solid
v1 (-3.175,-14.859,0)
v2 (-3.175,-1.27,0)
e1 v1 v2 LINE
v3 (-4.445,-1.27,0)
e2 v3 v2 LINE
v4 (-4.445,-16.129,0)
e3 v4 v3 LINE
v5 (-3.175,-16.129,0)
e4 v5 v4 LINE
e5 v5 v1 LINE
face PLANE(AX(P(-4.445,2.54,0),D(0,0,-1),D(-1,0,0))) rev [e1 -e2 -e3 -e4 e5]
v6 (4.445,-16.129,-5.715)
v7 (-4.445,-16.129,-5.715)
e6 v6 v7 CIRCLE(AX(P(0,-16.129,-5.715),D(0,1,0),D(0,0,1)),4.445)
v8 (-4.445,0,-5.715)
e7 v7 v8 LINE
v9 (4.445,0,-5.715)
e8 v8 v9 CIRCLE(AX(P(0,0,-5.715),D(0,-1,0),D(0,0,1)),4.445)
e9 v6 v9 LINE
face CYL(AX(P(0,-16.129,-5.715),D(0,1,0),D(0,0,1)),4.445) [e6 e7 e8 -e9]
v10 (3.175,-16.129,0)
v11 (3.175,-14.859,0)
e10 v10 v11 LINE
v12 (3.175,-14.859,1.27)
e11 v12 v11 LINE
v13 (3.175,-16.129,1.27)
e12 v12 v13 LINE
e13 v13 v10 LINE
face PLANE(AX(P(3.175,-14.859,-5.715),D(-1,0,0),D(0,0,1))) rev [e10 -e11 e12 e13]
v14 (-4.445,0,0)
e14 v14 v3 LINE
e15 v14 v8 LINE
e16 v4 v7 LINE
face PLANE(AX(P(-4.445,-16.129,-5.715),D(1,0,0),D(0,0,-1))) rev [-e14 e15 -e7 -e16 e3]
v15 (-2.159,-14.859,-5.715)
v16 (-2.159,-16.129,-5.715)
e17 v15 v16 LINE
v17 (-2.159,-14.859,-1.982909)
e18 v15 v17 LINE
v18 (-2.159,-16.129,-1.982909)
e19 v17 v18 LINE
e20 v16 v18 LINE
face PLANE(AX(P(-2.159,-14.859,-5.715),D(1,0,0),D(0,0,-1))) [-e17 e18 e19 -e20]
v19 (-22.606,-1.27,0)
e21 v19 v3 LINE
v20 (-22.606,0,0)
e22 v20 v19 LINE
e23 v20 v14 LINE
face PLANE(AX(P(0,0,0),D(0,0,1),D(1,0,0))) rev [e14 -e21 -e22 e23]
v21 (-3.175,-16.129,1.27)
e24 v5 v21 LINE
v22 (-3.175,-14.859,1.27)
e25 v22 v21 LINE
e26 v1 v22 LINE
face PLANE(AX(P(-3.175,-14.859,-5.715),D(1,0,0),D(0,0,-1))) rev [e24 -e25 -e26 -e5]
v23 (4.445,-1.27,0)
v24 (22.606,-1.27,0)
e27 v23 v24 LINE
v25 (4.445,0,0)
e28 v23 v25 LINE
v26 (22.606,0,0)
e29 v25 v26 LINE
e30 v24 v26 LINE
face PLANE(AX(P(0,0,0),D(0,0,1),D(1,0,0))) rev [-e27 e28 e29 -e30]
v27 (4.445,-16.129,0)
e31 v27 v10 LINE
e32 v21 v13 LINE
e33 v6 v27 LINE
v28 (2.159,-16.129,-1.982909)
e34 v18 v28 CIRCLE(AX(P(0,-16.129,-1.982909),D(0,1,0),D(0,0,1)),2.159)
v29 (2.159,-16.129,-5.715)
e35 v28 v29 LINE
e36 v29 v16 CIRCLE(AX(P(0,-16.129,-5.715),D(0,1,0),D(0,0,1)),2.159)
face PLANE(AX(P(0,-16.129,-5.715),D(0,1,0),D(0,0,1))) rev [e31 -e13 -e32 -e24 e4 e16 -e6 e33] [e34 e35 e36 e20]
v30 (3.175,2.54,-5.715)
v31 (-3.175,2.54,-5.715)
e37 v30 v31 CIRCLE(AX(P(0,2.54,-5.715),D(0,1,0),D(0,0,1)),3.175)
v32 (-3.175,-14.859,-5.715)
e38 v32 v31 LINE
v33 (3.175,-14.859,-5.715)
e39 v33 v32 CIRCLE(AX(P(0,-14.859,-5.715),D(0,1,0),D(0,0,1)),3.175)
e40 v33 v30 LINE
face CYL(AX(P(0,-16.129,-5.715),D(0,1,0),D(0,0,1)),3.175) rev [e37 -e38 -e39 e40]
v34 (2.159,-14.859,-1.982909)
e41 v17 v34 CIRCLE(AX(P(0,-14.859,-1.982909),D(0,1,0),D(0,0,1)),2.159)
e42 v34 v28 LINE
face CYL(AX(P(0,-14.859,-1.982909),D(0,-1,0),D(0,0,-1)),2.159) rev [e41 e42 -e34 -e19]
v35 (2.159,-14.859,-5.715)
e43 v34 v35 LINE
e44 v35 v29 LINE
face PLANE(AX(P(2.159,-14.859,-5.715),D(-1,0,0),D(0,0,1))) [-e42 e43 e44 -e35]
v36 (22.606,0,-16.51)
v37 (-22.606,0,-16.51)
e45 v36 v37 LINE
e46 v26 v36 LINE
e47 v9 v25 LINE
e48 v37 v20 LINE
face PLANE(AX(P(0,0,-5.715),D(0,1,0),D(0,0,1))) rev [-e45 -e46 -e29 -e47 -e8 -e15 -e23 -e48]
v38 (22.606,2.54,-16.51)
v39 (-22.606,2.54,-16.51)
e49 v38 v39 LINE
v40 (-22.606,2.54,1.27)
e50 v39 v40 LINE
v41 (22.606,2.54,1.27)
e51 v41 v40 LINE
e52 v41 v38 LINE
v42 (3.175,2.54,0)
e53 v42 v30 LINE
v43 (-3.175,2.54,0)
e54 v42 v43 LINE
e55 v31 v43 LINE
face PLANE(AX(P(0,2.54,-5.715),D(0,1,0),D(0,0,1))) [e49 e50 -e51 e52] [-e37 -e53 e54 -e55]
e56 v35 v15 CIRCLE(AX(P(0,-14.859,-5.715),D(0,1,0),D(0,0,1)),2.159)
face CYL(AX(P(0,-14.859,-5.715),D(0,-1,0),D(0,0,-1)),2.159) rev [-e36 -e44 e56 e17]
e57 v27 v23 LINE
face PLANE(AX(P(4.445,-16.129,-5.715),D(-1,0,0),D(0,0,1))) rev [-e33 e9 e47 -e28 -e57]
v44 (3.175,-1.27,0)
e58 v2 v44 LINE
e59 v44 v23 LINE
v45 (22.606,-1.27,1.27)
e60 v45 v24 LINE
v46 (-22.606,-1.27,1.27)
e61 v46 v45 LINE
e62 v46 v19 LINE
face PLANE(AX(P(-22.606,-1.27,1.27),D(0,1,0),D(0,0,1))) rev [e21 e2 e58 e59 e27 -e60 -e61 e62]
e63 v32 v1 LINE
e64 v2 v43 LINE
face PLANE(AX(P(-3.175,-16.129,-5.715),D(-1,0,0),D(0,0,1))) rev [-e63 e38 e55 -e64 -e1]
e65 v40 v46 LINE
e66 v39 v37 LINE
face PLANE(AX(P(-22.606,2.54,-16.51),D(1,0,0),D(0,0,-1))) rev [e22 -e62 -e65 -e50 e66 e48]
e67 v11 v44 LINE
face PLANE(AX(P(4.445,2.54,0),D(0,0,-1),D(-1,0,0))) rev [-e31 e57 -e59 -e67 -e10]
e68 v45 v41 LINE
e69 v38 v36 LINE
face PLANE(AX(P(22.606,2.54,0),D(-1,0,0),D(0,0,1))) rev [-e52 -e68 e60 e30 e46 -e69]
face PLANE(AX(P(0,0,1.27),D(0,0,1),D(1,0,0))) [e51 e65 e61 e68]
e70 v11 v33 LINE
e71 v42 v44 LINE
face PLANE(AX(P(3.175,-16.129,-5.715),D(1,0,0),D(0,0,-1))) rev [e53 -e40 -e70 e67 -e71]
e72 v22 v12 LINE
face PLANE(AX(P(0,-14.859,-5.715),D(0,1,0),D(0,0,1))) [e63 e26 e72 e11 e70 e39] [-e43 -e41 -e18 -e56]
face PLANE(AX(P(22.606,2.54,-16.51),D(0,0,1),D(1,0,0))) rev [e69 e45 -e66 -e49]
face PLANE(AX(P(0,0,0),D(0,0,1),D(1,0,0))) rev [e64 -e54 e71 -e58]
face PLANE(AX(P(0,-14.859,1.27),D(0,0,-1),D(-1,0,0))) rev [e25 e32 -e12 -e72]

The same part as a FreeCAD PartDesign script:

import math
import FreeCAD as App
import Part
import Sketcher

V = App.Vector
Q = App.Units.Quantity


def add_polygon(sketch, points):
    """Adds a closed chain of lines whose ends are joined by coincident constraints."""
    first, n = sketch.GeometryCount, len(points)
    for a, b in zip(points, points[1:] + points[:1]):
        sketch.addGeometry(Part.LineSegment(App.Vector(*a, 0), App.Vector(*b, 0)), False)
    for i in range(n):
        sketch.addConstraint(Sketcher.Constraint("Coincident", first + i, 2, first + (i + 1) % n, 1))

doc = App.newDocument("Part")
body = doc.addObject("PartDesign::Body", "Body")

sketch1 = doc.addObject("Sketcher::SketchObject", "Sketch")
body.addObject(sketch1)
sketch1.AttachmentSupport = (doc.XZ_Plane, [""])
sketch1.MapMode = "FlatFace"
sketch1.addGeometry([
    Part.LineSegment(V(22.606, 0, 0), V(22.606, -16.51, 0)),
    Part.LineSegment(V(22.606, -16.51, 0), V(-22.606, -16.51, 0)),
    Part.LineSegment(V(-22.606, -16.51, 0), V(-22.606, 0, 0)),
    Part.LineSegment(V(-22.606, 0, 0), V(-4.445, 0, 0)),
    Part.LineSegment(V(-4.445, 0, 0), V(-4.445, -5.715, 0)),
    Part.ArcOfCircle(Part.Circle(V(0, -5.715, 0), V(0, 0, 1), 4.445), math.radians(180), math.radians(360)),
    Part.LineSegment(V(4.445, -5.715, 0), V(4.445, 0, 0)),
    Part.LineSegment(V(4.445, 0, 0), V(22.606, 0, 0)),
], False)
sketch1.addConstraint([
    Sketcher.Constraint("Coincident", 0, 2, 1, 1),
    Sketcher.Constraint("Coincident", 1, 2, 2, 1),
    Sketcher.Constraint("Coincident", 2, 2, 3, 1),
    Sketcher.Constraint("Coincident", 3, 2, 4, 1),
    Sketcher.Constraint("Tangent", 4, 2, 5, 1),
    Sketcher.Constraint("Tangent", 5, 2, 6, 1),
    Sketcher.Constraint("Coincident", 6, 2, 7, 1),
    Sketcher.Constraint("Coincident", 7, 2, 0, 1),
    Sketcher.Constraint("Vertical", 0),
    Sketcher.Constraint("Horizontal", 1),
    Sketcher.Constraint("Vertical", 2),
    Sketcher.Constraint("Horizontal", 3),
    Sketcher.Constraint("Vertical", 4),
    Sketcher.Constraint("Vertical", 6),
    Sketcher.Constraint("Horizontal", 7),
    Sketcher.Constraint("Symmetric", 3, 2, 6, 2, -1, 1),
    Sketcher.Constraint("Symmetric", 2, 2, 7, 2, -2),
    Sketcher.Constraint("Radius", 5, Q("0.175 in")),
    Sketcher.Constraint("DistanceX", 1, 2, 1, 1, Q("1.78 in")),
    Sketcher.Constraint("DistanceY", 0, 2, 0, 1, Q("0.65 in")),
    Sketcher.Constraint("DistanceY", 4, 2, 4, 1, Q("0.225 in")),
])
pad1 = doc.addObject("PartDesign::Pad", "Pad")
body.addObject(pad1)
pad1.Profile = sketch1
pad1.Length = Q("0.1 in")
pad1.Reversed = True

sketch2 = doc.addObject("Sketcher::SketchObject", "Sketch001")
body.addObject(sketch2)
sketch2.AttachmentSupport = (doc.XZ_Plane, [""])
sketch2.MapMode = "FlatFace"
sketch2.AttachmentOffset = App.Placement(V(0, 0, 0.635 * 25.4), App.Rotation())
sketch2.addGeometry([
    Part.LineSegment(V(-4.445, 0, 0), V(-3.175, 0, 0)),
    Part.LineSegment(V(-3.175, 0, 0), V(-3.175, -5.715, 0)),
    Part.ArcOfCircle(Part.Circle(V(0, -5.715, 0), V(0, 0, 1), 3.175), math.radians(180), math.radians(360)),
    Part.LineSegment(V(3.175, -5.715, 0), V(3.175, 0, 0)),
    Part.LineSegment(V(3.175, 0, 0), V(4.445, 0, 0)),
    Part.LineSegment(V(4.445, 0, 0), V(4.445, -5.715, 0)),
    Part.ArcOfCircle(Part.Circle(V(0, -5.715, 0), V(0, 0, 1), 4.445), math.radians(180), math.radians(360)),
    Part.LineSegment(V(-4.445, -5.715, 0), V(-4.445, 0, 0)),
], False)
sketch2.addConstraint([
    Sketcher.Constraint("Coincident", 0, 2, 1, 1),
    Sketcher.Constraint("Tangent", 1, 2, 2, 1),
    Sketcher.Constraint("Tangent", 2, 2, 3, 1),
    Sketcher.Constraint("Coincident", 3, 2, 4, 1),
    Sketcher.Constraint("Coincident", 4, 2, 5, 1),
    Sketcher.Constraint("Tangent", 5, 2, 6, 2),
    Sketcher.Constraint("Tangent", 6, 1, 7, 1),
    Sketcher.Constraint("Coincident", 7, 2, 0, 1),
    Sketcher.Constraint("Horizontal", 0),
    Sketcher.Constraint("Vertical", 1),
    Sketcher.Constraint("Vertical", 3),
    Sketcher.Constraint("Horizontal", 4),
    Sketcher.Constraint("Vertical", 5),
    Sketcher.Constraint("Vertical", 7),
    Sketcher.Constraint("Coincident", 6, 3, 2, 3),
    Sketcher.Constraint("Symmetric", 0, 2, 3, 2, -1, 1),
    Sketcher.Constraint("PointOnObject", 0, 2, -1),
    Sketcher.Constraint("Radius", 2, Q("0.125 in")),
    Sketcher.Constraint("Radius", 6, Q("0.175 in")),
    Sketcher.Constraint("DistanceY", 1, 2, 1, 1, Q("0.225 in")),
])
pad2 = doc.addObject("PartDesign::Pad", "Pad001")
body.addObject(pad2)
pad2.Profile = sketch2
pad2.Length = Q("0.735 in")
pad2.Reversed = True

sketch3 = doc.addObject("Sketcher::SketchObject", "Sketch002")
body.addObject(sketch3)
sketch3.AttachmentSupport = (doc.XY_Plane, [""])
sketch3.MapMode = "FlatFace"
add_polygon(sketch3, [(-22.606, 2.54), (-22.606, -1.27), (22.606, -1.27), (22.606, 2.54)])
sketch3.addConstraint([
    Sketcher.Constraint("Vertical", 0),
    Sketcher.Constraint("Horizontal", 1),
    Sketcher.Constraint("Vertical", 2),
    Sketcher.Constraint("Horizontal", 3),
    Sketcher.Constraint("DistanceX", 1, 1, 1, 2, Q("1.78 in")),
    Sketcher.Constraint("DistanceY", 0, 2, 0, 1, Q("0.15 in")),
    Sketcher.Constraint("DistanceY", -1, 1, 2, 2, Q("0.1 in")),
    Sketcher.Constraint("DistanceX", 0, 2, -1, 1, Q("0.89 in")),
])
pad3 = doc.addObject("PartDesign::Pad", "Pad002")
body.addObject(pad3)
pad3.Profile = sketch3
pad3.Length = Q("0.05 in")

sketch4 = doc.addObject("Sketcher::SketchObject", "Sketch003")
body.addObject(sketch4)
sketch4.AttachmentSupport = (doc.XZ_Plane, [""])
sketch4.MapMode = "FlatFace"
sketch4.AttachmentOffset = App.Placement(V(0, 0, 0.635 * 25.4), App.Rotation())
sketch4.addGeometry([
    Part.LineSegment(V(3.175, 1.27, 0), V(3.175, -5.715, 0)),
    Part.ArcOfCircle(Part.Circle(V(0, -5.715, 0), V(0, 0, 1), 3.175), math.radians(180), math.radians(360)),
    Part.LineSegment(V(-3.175, -5.715, 0), V(-3.175, 1.27, 0)),
    Part.LineSegment(V(-3.175, 1.27, 0), V(3.175, 1.27, 0)),
    Part.ArcOfCircle(Part.Circle(V(0, -5.715, 0), V(0, 0, 1), 2.159), math.radians(180), math.radians(360)),
    Part.LineSegment(V(2.159, -5.715, 0), V(2.159, -1.982909, 0)),
    Part.ArcOfCircle(Part.Circle(V(0, -1.982909, 0), V(0, 0, 1), 2.159), math.radians(0), math.radians(180)),
    Part.LineSegment(V(-2.159, -1.982909, 0), V(-2.159, -5.715, 0)),
], False)
sketch4.addConstraint([
    Sketcher.Constraint("Tangent", 0, 2, 1, 2),
    Sketcher.Constraint("Tangent", 1, 1, 2, 1),
    Sketcher.Constraint("Coincident", 2, 2, 3, 1),
    Sketcher.Constraint("Coincident", 3, 2, 0, 1),
    Sketcher.Constraint("Tangent", 4, 2, 5, 1),
    Sketcher.Constraint("Tangent", 5, 2, 6, 1),
    Sketcher.Constraint("Tangent", 6, 2, 7, 1),
    Sketcher.Constraint("Tangent", 7, 2, 4, 1),
    Sketcher.Constraint("Vertical", 0),
    Sketcher.Constraint("Vertical", 2),
    Sketcher.Constraint("Horizontal", 3),
    Sketcher.Constraint("Vertical", 5),
    Sketcher.Constraint("Vertical", 7),
    Sketcher.Constraint("Coincident", 4, 3, 1, 3),
    Sketcher.Constraint("PointOnObject", 1, 3, -2),
    Sketcher.Constraint("Radius", 1, Q("0.125 in")),
    Sketcher.Constraint("Radius", 4, Q("0.085 in")),
    Sketcher.Constraint("DistanceY", 0, 2, 0, 1, Q("0.275 in")),
    Sketcher.Constraint("DistanceY", -1, 1, 2, 2, Q("0.05 in")),
    Sketcher.Constraint("DistanceY", 5, 1, 5, 2, 3.732091),
])
pad4 = doc.addObject("PartDesign::Pad", "Pad003")
body.addObject(pad4)
pad4.Profile = sketch4
pad4.Length = Q("0.05 in")
pad4.Reversed = True

doc.recompute()
